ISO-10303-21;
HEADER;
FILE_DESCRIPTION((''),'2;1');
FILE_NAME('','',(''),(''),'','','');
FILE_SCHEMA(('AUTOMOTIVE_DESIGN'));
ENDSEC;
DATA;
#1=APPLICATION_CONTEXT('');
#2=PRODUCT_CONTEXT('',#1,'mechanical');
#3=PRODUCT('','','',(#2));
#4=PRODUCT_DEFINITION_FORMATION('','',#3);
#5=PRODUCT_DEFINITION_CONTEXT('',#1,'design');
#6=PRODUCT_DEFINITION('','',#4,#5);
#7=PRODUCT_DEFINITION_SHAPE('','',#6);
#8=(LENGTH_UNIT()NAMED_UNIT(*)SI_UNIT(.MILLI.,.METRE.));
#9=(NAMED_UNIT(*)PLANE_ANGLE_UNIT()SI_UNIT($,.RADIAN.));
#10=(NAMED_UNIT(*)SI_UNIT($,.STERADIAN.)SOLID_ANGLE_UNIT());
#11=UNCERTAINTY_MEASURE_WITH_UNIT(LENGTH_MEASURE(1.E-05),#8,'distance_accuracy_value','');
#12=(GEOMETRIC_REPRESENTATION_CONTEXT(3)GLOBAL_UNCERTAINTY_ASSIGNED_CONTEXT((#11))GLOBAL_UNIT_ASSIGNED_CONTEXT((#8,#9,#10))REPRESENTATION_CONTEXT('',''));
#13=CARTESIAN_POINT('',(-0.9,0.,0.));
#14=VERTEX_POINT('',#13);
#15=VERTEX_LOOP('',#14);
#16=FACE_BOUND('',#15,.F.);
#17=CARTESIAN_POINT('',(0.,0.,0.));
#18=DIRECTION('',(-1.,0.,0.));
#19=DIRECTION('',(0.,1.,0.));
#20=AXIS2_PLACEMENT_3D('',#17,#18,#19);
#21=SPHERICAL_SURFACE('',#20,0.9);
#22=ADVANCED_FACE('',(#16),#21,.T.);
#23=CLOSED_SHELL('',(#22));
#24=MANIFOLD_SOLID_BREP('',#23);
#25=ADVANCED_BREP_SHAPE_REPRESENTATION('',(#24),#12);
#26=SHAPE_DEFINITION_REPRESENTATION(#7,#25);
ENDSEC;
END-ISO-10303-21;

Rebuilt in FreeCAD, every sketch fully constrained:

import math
import FreeCAD as App
import Part
import Sketcher
from FreeCAD import Vector

doc = App.newDocument("Part")
params = doc.addObject("Spreadsheet::Sheet", "Params")
for row, (alias, value) in enumerate([
    ("sketch1_radius", "0.9 mm"),
    ("revolution_angle", "360 deg"),
], start=1):
    params.set(f"A{row}", alias)
    params.set(f"B{row}", "=" + value)
    params.setAlias(f"B{row}", alias)

body = doc.addObject("PartDesign::Body", "Body")

sketch1 = body.newObject("Sketcher::SketchObject", "Sketch")
sketch1.AttachmentSupport = (doc.getObject("XY_Plane"), [""])
sketch1.MapMode = "FlatFace"
sketch1.addGeometry([
    Part.LineSegment(Vector(-0.9, 0, 0), Vector(0.9, 0, 0)),
    Part.ArcOfCircle(Part.Circle(Vector(0, 0, 0), Vector(0, 0, 1), 0.9), math.radians(0), math.radians(180)),
], False)
sketch1.addConstraint([
    Sketcher.Constraint("Coincident", 0, 1, 1, 2),
    Sketcher.Constraint("Coincident", 1, 1, 0, 2),
    Sketcher.Constraint("Horizontal", 0),
    Sketcher.Constraint("Coincident", 1, 3, -1, 1),
    Sketcher.Constraint("PointOnObject", 0, 1, -1),
    Sketcher.Constraint("Radius", 1, 0.9),
])
sketch1.setExpression("Constraints[5]", "Params.sketch1_radius")
revolution = body.newObject("PartDesign::Revolution", "Revolution")
revolution.Profile = sketch1
revolution.ReferenceAxis = (sketch1, ["H_Axis"])
revolution.setExpression("Angle", "Params.revolution_angle")

doc.recompute()
